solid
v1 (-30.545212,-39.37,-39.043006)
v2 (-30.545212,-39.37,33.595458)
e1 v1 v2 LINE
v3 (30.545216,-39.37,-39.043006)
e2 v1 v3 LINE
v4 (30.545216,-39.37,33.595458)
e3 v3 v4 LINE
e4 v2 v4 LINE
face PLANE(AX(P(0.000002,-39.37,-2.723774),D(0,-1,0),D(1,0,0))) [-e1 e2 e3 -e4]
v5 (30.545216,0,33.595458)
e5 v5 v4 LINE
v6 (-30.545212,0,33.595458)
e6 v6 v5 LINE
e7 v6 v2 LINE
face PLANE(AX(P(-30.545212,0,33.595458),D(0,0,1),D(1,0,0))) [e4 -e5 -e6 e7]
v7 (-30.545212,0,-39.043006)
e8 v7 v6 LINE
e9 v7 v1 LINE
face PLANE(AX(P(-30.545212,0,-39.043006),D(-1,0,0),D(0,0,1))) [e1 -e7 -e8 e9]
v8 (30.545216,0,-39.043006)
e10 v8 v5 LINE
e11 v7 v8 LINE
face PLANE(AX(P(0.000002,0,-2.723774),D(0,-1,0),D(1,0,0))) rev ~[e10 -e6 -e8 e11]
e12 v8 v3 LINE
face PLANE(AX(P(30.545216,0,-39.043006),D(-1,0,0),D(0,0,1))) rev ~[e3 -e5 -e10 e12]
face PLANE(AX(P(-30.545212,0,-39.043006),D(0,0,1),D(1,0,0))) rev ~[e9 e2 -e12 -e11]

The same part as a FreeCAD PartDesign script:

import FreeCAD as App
import Part
import Sketcher
Q = App.Units.Quantity

doc = App.newDocument("Part")
body = doc.addObject("PartDesign::Body", "Body")

sketch1 = body.newObject("Sketcher::SketchObject", "Sketch")
sketch1.AttachmentSupport = (doc.getObject("XZ_Plane"), [""])
sketch1.MapMode = "FlatFace"
sketch1.addGeometry([
    Part.LineSegment(App.Vector(-31, 34, 0), App.Vector(-31, -39, 0)),
    Part.LineSegment(App.Vector(-31, -39, 0), App.Vector(31, -39, 0)),
    Part.LineSegment(App.Vector(31, -39, 0), App.Vector(31, 34, 0)),
    Part.LineSegment(App.Vector(31, 34, 0), App.Vector(-31, 34, 0)),
], False)
sketch1.addConstraint([
    Sketcher.Constraint("Coincident", 0, 2, 1, 1),
    Sketcher.Constraint("Coincident", 1, 2, 2, 1),
    Sketcher.Constraint("Coincident", 2, 2, 3, 1),
    Sketcher.Constraint("Coincident", 3, 2, 0, 1),
    Sketcher.Constraint("Vertical", 0),
    Sketcher.Constraint("Horizontal", 1),
    Sketcher.Constraint("Vertical", 2),
    Sketcher.Constraint("Horizontal", 3),
    Sketcher.Constraint("DistanceX", 1, 1, 1, 2, Q("61.090428 mm")),
    Sketcher.Constraint("DistanceY", 0, 2, 0, 1, Q("72.638464 mm")),
    Sketcher.Constraint("DistanceX", 0, 2, -1, 1, Q("30.545212 mm")),
    Sketcher.Constraint("DistanceY", 0, 2, -1, 1, Q("39.043006 mm")),
])
pad1 = body.newObject("PartDesign::Pad", "Pad")
pad1.Profile = sketch1
pad1.Length = Q("1.55 in")

doc.recompute()
